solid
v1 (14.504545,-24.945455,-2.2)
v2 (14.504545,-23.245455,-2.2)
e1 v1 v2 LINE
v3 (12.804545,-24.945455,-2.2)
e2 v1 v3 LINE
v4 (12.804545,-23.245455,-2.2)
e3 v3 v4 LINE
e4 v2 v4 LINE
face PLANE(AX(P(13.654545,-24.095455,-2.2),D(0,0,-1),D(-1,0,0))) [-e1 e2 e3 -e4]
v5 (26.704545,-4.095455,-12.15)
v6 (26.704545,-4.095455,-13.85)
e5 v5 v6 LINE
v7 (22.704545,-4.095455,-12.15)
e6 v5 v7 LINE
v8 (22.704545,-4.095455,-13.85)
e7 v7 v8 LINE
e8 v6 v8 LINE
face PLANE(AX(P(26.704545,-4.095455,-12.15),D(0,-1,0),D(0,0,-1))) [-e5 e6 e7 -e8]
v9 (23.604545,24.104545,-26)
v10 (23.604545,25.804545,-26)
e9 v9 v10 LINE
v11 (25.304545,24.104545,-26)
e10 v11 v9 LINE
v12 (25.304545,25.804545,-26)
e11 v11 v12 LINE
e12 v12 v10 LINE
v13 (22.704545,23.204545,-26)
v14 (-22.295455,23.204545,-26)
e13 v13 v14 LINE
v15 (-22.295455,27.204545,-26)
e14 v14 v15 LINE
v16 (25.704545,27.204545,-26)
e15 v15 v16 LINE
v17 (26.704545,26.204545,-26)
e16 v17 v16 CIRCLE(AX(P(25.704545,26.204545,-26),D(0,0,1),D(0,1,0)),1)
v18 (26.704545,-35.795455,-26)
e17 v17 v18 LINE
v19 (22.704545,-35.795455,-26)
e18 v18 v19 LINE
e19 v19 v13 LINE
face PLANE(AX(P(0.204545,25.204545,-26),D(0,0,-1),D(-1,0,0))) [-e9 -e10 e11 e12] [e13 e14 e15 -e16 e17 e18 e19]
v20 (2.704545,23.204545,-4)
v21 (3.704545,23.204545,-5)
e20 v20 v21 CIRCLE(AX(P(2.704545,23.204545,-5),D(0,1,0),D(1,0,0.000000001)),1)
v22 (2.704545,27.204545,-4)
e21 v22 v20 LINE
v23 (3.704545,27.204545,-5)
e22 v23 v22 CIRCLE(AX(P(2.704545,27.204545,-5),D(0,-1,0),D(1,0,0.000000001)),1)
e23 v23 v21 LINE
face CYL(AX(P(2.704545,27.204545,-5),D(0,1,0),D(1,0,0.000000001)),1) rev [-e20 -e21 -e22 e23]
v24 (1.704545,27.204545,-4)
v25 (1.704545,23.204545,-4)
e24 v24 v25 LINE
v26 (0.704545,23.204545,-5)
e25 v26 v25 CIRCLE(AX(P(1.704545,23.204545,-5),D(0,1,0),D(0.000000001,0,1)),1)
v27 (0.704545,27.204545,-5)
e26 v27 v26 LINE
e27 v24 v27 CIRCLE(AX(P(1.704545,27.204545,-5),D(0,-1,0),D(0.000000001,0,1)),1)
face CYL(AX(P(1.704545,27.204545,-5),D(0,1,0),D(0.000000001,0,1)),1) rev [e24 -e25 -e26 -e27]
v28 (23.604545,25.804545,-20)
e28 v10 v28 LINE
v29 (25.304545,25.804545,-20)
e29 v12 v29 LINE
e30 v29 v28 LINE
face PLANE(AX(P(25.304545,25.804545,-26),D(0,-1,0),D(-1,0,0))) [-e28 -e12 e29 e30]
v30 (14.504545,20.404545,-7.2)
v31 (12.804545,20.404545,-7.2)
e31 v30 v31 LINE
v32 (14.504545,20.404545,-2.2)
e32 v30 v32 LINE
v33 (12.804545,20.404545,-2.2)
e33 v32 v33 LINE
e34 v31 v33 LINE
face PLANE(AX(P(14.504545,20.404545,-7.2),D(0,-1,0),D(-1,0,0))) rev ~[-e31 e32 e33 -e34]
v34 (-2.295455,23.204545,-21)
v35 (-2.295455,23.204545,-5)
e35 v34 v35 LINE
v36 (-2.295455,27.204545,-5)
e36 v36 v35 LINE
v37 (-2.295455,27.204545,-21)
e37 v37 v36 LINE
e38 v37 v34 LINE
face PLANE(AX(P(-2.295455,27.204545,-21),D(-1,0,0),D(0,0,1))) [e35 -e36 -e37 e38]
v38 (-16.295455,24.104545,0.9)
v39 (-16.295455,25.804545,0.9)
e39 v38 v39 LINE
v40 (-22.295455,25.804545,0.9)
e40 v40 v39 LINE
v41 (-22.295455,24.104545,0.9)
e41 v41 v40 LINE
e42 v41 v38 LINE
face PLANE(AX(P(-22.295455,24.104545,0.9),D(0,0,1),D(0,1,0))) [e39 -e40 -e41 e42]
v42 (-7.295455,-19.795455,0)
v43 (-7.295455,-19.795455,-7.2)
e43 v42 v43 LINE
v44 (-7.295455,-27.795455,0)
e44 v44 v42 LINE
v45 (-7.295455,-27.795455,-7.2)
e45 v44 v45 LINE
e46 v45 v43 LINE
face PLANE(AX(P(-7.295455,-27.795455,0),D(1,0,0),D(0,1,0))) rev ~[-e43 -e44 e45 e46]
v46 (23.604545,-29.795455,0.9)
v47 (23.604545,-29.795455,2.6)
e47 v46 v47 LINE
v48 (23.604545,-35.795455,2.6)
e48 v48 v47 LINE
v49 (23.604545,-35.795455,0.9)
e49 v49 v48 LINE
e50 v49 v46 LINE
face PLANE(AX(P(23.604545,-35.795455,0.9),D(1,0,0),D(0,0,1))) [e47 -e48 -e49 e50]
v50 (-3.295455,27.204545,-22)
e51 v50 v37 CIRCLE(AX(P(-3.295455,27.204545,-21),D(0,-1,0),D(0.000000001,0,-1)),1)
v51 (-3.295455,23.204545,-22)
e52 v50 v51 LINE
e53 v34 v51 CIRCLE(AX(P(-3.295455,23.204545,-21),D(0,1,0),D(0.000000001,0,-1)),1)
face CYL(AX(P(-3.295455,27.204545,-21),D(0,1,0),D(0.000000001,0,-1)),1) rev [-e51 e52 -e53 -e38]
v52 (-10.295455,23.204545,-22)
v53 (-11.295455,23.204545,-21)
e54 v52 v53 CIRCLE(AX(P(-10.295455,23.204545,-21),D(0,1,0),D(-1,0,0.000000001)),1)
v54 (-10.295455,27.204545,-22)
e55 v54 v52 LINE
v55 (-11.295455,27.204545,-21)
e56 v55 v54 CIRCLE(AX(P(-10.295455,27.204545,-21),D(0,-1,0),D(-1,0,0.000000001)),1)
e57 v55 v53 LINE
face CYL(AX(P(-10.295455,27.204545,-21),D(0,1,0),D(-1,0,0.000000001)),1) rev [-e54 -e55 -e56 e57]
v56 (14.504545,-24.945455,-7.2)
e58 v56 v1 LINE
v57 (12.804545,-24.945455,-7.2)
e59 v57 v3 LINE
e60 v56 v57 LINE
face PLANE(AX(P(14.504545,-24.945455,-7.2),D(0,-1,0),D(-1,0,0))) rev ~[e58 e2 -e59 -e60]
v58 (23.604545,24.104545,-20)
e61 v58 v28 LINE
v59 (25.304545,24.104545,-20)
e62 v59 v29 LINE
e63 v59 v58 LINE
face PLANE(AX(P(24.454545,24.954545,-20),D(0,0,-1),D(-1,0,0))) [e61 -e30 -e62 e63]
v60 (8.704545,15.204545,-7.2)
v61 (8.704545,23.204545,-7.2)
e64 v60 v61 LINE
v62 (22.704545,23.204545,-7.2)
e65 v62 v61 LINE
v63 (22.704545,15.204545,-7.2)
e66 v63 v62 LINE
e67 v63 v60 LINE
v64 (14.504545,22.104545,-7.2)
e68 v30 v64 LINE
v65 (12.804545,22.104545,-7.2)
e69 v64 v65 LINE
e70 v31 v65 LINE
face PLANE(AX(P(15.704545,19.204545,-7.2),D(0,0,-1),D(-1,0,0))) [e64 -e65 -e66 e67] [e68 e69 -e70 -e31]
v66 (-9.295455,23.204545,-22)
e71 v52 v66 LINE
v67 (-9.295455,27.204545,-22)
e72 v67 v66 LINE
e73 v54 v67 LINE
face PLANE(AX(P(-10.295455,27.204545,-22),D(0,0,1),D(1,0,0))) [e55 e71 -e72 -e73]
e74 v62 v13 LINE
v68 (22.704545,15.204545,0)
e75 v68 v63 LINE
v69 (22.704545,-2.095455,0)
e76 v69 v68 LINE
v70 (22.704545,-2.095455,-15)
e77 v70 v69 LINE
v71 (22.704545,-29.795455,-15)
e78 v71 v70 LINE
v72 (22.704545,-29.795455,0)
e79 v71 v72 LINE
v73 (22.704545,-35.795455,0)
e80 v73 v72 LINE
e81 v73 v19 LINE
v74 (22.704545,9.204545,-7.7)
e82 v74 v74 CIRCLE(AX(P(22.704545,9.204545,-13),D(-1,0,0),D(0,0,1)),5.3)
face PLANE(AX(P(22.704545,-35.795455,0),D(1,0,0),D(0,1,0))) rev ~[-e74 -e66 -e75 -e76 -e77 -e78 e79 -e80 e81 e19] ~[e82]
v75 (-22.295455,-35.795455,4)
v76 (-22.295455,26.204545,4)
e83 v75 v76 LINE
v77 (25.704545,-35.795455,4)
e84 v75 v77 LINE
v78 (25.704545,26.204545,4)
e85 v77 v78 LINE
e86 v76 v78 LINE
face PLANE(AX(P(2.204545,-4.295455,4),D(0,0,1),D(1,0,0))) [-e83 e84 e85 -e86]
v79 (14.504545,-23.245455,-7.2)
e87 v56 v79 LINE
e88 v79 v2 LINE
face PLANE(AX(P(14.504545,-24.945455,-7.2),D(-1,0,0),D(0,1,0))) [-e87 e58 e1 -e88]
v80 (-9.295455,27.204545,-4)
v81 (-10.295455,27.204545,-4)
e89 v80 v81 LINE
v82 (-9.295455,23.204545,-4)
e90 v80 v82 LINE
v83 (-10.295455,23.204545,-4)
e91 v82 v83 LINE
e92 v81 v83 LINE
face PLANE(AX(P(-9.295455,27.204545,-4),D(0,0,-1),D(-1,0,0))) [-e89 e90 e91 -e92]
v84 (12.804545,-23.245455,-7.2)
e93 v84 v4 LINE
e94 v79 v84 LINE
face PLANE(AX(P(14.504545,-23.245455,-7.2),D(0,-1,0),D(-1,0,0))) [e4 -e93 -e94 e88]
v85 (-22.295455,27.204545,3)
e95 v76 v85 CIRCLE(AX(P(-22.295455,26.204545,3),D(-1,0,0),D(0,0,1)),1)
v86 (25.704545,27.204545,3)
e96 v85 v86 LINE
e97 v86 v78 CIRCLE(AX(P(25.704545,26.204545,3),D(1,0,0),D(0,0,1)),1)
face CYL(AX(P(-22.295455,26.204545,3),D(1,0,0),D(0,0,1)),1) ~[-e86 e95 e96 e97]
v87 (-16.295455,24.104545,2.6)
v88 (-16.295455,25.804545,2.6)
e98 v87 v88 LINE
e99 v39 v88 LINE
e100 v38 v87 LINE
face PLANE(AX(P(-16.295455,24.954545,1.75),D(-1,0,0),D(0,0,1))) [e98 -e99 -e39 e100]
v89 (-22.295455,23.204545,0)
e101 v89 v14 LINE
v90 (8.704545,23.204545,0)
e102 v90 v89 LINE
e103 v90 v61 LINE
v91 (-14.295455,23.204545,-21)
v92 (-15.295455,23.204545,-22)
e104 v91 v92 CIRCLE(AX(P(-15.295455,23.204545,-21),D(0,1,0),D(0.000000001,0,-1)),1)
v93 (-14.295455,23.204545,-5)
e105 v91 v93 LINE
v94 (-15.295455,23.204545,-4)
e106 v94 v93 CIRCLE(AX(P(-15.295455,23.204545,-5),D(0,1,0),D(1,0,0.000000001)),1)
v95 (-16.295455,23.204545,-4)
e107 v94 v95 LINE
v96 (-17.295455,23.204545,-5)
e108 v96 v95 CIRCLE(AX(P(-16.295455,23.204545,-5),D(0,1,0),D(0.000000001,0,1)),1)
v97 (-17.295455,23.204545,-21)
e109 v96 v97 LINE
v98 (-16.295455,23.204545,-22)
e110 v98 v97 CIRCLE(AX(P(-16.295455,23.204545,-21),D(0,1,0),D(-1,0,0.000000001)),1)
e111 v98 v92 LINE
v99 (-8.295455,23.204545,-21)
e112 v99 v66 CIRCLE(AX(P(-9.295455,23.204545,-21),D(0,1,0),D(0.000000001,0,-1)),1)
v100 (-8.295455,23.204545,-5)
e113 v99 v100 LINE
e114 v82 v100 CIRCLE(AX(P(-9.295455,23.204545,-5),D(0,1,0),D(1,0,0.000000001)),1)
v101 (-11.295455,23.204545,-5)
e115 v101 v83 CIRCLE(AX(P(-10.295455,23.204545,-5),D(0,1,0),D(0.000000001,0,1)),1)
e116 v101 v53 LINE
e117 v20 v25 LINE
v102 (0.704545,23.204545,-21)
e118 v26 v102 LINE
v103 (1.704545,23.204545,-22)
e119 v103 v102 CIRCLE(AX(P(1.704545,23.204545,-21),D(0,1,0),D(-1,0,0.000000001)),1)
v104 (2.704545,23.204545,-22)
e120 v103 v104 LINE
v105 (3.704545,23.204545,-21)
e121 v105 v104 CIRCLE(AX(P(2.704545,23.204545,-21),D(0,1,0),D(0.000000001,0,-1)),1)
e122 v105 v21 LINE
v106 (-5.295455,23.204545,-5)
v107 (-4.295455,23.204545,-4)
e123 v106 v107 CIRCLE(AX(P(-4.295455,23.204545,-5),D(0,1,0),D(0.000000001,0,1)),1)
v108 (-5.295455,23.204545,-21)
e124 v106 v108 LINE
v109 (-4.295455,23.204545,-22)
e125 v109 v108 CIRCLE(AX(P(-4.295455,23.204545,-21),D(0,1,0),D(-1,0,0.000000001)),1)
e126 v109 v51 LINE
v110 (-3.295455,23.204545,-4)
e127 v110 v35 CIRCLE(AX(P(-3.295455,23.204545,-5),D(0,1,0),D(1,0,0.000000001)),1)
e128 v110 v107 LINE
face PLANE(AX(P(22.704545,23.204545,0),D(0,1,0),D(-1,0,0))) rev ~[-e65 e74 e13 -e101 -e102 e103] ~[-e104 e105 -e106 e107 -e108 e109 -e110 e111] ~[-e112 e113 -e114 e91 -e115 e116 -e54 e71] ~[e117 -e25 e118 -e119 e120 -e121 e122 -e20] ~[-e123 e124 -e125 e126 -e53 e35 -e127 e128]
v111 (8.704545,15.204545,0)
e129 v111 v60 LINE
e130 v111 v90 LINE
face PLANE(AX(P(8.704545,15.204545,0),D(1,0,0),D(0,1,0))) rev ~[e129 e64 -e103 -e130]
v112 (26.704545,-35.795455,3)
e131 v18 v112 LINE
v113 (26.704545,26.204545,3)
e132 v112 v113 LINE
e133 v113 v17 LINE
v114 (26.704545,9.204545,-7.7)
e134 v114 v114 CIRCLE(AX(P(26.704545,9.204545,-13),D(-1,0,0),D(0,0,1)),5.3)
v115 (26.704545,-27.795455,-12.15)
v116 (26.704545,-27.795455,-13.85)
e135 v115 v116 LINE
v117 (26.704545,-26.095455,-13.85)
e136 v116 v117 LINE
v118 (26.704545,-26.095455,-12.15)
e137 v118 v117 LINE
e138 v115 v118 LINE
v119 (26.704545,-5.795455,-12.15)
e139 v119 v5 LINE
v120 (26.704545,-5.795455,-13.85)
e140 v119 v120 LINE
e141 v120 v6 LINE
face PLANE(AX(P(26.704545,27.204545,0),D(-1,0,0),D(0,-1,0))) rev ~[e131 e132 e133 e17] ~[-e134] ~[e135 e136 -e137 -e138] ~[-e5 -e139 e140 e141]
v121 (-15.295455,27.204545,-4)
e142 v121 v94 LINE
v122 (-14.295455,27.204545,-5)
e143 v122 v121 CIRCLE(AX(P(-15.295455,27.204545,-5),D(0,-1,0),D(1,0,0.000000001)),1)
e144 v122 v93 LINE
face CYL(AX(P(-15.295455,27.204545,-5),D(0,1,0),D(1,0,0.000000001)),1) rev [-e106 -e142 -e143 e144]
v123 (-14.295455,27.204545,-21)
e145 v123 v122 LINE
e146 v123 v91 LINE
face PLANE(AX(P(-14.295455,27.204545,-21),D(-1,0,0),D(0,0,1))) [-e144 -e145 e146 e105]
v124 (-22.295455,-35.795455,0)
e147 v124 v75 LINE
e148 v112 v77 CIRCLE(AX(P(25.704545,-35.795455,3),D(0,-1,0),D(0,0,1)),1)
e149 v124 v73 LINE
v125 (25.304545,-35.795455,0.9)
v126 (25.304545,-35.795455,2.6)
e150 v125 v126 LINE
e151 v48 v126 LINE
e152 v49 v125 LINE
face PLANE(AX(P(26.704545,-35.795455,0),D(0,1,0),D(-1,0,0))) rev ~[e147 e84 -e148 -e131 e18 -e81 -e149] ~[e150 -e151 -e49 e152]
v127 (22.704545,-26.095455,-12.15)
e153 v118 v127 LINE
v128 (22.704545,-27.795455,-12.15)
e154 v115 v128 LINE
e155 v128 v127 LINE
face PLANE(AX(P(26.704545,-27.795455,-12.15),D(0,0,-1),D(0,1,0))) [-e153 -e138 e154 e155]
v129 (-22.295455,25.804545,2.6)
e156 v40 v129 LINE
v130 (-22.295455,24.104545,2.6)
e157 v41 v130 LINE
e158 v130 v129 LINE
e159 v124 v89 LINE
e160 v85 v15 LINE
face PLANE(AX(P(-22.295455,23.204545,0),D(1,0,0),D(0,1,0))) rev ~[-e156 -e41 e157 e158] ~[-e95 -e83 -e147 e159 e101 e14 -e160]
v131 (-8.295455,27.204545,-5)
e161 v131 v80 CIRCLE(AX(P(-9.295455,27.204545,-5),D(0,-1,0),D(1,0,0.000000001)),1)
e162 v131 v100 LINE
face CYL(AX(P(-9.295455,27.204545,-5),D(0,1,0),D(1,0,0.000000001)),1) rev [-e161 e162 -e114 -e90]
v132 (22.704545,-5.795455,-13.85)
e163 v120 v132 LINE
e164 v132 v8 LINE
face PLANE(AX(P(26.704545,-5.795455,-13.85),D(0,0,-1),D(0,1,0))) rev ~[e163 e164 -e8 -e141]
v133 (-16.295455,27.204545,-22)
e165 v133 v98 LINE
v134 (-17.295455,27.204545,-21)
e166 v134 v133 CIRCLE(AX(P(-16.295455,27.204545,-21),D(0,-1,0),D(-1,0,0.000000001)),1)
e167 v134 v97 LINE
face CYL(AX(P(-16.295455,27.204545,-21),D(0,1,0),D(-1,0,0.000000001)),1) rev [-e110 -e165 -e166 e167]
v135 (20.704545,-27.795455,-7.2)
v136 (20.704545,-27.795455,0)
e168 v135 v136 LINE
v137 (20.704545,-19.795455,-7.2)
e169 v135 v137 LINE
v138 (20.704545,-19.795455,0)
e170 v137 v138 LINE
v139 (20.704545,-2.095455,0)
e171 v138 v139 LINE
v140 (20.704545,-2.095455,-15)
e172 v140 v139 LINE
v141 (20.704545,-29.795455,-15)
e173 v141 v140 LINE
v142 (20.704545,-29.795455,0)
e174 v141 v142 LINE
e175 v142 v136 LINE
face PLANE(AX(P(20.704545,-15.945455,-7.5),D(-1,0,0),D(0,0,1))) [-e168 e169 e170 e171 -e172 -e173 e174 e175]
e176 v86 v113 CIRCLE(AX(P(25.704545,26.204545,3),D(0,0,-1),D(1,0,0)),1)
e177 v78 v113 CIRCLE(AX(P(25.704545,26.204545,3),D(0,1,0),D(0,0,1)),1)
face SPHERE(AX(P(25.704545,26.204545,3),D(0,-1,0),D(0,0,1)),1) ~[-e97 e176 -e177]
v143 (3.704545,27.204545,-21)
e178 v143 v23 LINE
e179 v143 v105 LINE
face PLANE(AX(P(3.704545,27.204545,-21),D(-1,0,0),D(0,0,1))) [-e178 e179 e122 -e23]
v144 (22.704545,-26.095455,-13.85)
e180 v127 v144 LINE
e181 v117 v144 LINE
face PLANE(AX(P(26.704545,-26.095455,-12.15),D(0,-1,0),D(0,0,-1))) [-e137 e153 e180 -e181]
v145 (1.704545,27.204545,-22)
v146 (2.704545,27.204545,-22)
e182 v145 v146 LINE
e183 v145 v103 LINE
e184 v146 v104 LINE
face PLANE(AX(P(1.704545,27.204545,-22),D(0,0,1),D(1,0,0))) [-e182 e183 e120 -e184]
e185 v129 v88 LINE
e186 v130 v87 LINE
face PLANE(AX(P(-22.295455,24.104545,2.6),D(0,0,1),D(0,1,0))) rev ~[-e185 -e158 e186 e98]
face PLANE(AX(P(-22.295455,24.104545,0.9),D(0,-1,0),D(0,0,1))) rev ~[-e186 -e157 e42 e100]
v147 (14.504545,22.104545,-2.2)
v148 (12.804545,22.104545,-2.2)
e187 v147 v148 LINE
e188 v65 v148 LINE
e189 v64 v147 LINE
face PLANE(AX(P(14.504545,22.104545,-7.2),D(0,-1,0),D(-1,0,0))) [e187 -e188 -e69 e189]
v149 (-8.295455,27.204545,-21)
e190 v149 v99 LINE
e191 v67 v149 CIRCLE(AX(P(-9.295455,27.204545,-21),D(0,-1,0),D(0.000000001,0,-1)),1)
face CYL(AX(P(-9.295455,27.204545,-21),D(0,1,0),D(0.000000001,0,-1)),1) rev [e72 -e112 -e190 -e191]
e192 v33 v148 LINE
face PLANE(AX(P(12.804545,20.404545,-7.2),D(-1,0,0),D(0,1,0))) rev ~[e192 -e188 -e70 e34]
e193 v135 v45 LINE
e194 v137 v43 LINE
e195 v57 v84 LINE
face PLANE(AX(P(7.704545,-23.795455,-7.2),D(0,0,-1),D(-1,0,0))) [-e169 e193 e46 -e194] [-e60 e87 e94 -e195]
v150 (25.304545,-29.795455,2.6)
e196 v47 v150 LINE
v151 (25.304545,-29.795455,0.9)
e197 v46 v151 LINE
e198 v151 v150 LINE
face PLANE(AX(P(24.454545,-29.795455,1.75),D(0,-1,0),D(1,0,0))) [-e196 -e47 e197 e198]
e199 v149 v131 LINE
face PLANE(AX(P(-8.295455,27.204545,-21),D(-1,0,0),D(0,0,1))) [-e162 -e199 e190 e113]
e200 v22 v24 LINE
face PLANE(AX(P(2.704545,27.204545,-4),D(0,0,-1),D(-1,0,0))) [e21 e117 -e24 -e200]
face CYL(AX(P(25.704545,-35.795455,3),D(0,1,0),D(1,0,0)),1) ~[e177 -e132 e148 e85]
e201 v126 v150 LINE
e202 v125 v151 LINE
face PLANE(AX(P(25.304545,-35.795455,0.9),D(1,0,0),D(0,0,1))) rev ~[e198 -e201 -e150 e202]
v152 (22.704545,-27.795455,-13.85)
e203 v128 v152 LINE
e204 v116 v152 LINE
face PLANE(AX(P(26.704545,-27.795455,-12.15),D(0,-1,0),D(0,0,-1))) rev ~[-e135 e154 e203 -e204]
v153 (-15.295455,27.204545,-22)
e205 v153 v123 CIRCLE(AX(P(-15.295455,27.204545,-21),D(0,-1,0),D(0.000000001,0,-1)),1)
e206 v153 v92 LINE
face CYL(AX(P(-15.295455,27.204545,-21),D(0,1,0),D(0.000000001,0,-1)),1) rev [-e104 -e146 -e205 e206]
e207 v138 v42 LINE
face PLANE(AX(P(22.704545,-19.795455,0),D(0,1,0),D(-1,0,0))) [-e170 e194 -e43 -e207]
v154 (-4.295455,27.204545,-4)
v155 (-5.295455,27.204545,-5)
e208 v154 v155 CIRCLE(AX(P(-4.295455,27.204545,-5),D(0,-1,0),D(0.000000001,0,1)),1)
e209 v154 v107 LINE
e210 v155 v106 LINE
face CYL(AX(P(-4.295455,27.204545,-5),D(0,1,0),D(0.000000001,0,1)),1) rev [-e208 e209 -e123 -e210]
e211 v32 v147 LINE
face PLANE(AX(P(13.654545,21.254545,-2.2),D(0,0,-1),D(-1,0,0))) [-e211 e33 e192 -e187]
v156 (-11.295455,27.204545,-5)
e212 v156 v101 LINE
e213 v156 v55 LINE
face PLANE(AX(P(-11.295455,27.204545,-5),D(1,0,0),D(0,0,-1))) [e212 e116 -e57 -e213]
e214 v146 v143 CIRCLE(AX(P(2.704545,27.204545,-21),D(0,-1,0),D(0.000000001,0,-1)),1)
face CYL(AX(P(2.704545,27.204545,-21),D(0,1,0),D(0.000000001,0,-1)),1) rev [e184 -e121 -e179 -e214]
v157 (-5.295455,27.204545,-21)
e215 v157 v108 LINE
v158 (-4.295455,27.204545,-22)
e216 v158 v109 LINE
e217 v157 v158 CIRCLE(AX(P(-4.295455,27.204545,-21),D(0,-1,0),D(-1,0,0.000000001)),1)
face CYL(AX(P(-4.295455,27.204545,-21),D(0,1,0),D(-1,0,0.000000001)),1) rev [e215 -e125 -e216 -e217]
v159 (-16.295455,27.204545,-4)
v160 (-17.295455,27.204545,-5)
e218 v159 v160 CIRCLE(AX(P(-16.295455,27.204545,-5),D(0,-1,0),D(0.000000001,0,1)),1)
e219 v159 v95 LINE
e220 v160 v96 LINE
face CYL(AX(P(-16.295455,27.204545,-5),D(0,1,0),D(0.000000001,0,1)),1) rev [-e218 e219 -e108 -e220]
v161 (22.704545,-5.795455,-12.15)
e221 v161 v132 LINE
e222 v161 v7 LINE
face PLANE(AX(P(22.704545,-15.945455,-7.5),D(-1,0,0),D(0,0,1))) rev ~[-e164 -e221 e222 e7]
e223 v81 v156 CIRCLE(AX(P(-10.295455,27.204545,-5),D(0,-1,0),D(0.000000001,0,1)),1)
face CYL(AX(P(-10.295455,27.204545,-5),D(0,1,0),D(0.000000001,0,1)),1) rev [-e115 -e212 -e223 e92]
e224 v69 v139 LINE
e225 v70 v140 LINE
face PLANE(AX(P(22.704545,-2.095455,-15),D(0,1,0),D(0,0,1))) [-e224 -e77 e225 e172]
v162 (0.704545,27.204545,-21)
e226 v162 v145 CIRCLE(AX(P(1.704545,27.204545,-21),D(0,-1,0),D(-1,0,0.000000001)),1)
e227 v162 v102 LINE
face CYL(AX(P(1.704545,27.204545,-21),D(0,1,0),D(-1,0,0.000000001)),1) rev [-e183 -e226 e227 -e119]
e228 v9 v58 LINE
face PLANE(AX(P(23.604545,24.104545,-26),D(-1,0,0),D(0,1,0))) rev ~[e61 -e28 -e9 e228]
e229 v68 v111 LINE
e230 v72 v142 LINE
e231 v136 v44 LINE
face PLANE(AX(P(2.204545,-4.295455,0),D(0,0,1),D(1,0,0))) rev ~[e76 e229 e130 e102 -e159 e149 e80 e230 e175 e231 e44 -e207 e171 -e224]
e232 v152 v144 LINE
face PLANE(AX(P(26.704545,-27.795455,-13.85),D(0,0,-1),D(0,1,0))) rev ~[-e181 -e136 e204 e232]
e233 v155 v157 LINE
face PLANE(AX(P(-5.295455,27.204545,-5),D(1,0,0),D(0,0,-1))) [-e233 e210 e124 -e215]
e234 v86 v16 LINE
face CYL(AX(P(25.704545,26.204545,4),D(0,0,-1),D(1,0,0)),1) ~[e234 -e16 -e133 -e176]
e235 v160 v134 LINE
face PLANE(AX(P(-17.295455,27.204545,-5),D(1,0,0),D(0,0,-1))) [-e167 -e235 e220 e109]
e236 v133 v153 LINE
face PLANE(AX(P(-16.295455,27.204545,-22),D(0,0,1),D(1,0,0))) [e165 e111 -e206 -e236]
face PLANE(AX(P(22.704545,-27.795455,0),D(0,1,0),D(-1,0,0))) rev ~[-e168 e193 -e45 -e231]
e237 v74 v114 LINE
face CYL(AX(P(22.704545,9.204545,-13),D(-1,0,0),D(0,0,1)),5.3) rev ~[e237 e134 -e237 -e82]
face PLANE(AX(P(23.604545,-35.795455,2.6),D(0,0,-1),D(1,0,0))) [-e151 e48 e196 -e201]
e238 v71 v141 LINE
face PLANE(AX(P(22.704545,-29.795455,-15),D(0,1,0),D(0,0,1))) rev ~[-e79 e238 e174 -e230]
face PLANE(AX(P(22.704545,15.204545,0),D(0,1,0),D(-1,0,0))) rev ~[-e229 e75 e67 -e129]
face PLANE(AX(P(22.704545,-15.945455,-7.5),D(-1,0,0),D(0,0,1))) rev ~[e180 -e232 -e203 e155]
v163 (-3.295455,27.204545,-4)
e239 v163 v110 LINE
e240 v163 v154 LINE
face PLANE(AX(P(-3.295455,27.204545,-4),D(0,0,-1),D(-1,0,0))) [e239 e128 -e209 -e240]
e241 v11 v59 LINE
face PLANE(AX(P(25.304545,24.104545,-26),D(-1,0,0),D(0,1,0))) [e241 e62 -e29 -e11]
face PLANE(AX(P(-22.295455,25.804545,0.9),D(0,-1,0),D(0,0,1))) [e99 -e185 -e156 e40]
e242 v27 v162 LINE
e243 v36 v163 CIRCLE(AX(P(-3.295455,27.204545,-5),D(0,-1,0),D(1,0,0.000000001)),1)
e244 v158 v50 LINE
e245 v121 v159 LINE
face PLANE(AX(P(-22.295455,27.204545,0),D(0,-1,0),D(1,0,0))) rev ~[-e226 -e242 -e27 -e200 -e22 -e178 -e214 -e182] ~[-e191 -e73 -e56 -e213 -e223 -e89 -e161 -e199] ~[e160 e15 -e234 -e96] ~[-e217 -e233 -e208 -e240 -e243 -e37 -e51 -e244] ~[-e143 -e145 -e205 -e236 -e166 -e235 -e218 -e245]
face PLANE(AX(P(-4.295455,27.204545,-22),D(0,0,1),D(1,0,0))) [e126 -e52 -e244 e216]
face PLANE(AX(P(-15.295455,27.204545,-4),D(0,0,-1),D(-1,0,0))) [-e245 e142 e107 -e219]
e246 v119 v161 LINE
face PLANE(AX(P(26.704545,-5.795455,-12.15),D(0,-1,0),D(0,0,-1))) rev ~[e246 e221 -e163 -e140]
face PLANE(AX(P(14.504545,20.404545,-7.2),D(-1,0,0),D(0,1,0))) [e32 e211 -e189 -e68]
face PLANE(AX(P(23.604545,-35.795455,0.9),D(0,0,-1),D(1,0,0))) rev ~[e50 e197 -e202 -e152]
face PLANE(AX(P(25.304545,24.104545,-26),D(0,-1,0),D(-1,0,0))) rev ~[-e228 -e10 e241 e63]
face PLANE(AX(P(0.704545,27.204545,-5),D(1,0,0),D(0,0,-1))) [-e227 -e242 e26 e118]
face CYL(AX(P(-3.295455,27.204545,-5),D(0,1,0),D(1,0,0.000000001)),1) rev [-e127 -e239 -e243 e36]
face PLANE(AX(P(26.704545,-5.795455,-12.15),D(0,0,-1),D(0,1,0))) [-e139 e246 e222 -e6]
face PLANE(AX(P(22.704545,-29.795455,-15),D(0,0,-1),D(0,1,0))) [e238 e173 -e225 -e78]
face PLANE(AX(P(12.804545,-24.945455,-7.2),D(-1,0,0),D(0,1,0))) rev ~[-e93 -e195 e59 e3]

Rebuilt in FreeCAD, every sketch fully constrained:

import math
import FreeCAD as App
import Part
import Sketcher
from FreeCAD import Vector
Q = App.Units.Quantity


def edges_at(feature, points):
    """Names of the edges that pass closest to the given points."""
    edges = feature.Shape.Edges
    near = lambda p: min(range(len(edges)), key=lambda i: edges[i].distToShape(Part.Vertex(*p))[0])
    return sorted({f"Edge{near(p) + 1}" for p in points})


def add_polygon(sketch, points):
    """Adds a closed chain of lines whose ends are joined by coincident constraints."""
    first, n = sketch.GeometryCount, len(points)
    for a, b in zip(points, points[1:] + points[:1]):
        sketch.addGeometry(Part.LineSegment(App.Vector(*a, 0), App.Vector(*b, 0)), False)
    for i in range(n):
        sketch.addConstraint(Sketcher.Constraint("Coincident", first + i, 2, first + (i + 1) % n, 1))

doc = App.newDocument("Part")
body = doc.addObject("PartDesign::Body", "Body")

# Sketch on XY plane
sketch1 = body.newObject("Sketcher::SketchObject", "Sketch")
sketch1.AttachmentSupport = (doc.getObject("XY_Plane"), [""])
sketch1.MapMode = "FlatFace"
add_polygon(sketch1, [(-22.295455, 27.204545), (-22.295455, -35.795455), (26.704545, -35.795455), (26.704545, 27.204545)])  # lines 0-3
sketch1.addConstraint(Sketcher.Constraint("Vertical", 0))
sketch1.addConstraint(Sketcher.Constraint("Horizontal", 1))
sketch1.addConstraint(Sketcher.Constraint("Vertical", 2))
sketch1.addConstraint(Sketcher.Constraint("Horizontal", 3))
sketch1.addConstraint(Sketcher.Constraint("DistanceX", 1, 1, 1, 2, Q("49 mm")))
sketch1.addConstraint(Sketcher.Constraint("DistanceY", 0, 2, 0, 1, Q("63 mm")))
sketch1.addConstraint(Sketcher.Constraint("DistanceX", 0, 2, -1, 1, Q("22.295455 mm")))
sketch1.addConstraint(Sketcher.Constraint("DistanceY", 0, 2, -1, 1, Q("35.795455 mm")))
pad1 = body.newObject("PartDesign::Pad", "Pad")
pad1.Profile = sketch1
pad1.Length = 4

# Sketch on XY plane
sketch2 = body.newObject("Sketcher::SketchObject", "Sketch001")
sketch2.AttachmentSupport = (doc.getObject("XY_Plane"), [""])
sketch2.MapMode = "FlatFace"
add_polygon(sketch2, [(22.704545, 23.204545), (-22.295455, 23.204545), (-22.295455, 27.204545), (26.704545, 27.204545), (26.704545, -35.795455), (22.704545, -35.795455)])  # lines 0-5
sketch2.addConstraint(Sketcher.Constraint("Horizontal", 0))
sketch2.addConstraint(Sketcher.Constraint("Vertical", 1))
sketch2.addConstraint(Sketcher.Constraint("Horizontal", 2))
sketch2.addConstraint(Sketcher.Constraint("Vertical", 3))
sketch2.addConstraint(Sketcher.Constraint("Horizontal", 4))
sketch2.addConstraint(Sketcher.Constraint("Vertical", 5))
sketch2.addConstraint(Sketcher.Constraint("Equal", 4, 1))
sketch2.addConstraint(Sketcher.Constraint("DistanceX", 0, 2, 0, 1, Q("45 mm")))
sketch2.addConstraint(Sketcher.Constraint("DistanceX", 2, 1, 2, 2, Q("49 mm")))
sketch2.addConstraint(Sketcher.Constraint("DistanceY", 3, 2, 3, 1, Q("63 mm")))
sketch2.addConstraint(Sketcher.Constraint("DistanceX", 0, 2, -1, 1, Q("22.295455 mm")))
sketch2.addConstraint(Sketcher.Constraint("DistanceY", -1, 1, 0, 2, Q("23.204545 mm")))
pad2 = body.newObject("PartDesign::Pad", "Pad001")
pad2.Profile = sketch2
pad2.Length = 26
pad2.Reversed = True

# Sketch on XY plane
sketch3 = body.newObject("Sketcher::SketchObject", "Sketch002")
sketch3.AttachmentSupport = (doc.getObject("XY_Plane"), [""])
sketch3.MapMode = "FlatFace"
add_polygon(sketch3, [(22.704545, 23.204545), (22.704545, 15.204545), (8.704545, 15.204545), (8.704545, 23.204545)])  # lines 0-3
add_polygon(sketch3, [(22.704545, -19.795455), (22.704545, -27.795455), (-7.295455, -27.795455), (-7.295455, -19.795455)])  # lines 4-7
sketch3.addConstraint(Sketcher.Constraint("Vertical", 0))
sketch3.addConstraint(Sketcher.Constraint("Horizontal", 1))
sketch3.addConstraint(Sketcher.Constraint("Vertical", 2))
sketch3.addConstraint(Sketcher.Constraint("Horizontal", 3))
sketch3.addConstraint(Sketcher.Constraint("Vertical", 4))
sketch3.addConstraint(Sketcher.Constraint("Horizontal", 5))
sketch3.addConstraint(Sketcher.Constraint("Vertical", 6))
sketch3.addConstraint(Sketcher.Constraint("Horizontal", 7))
sketch3.addConstraint(Sketcher.Constraint("Vertical", 3, 2, 4, 2))
sketch3.addConstraint(Sketcher.Constraint("Equal", 2, 4))
sketch3.addConstraint(Sketcher.Constraint("DistanceX", 1, 2, 1, 1, Q("14 mm")))
sketch3.addConstraint(Sketcher.Constraint("DistanceX", 5, 2, 5, 1, Q("30 mm")))
sketch3.addConstraint(Sketcher.Constraint("DistanceY", 0, 2, 0, 1, Q("8 mm")))
sketch3.addConstraint(Sketcher.Constraint("DistanceY", 4, 2, 0, 2, Q("43 mm")))
sketch3.addConstraint(Sketcher.Constraint("DistanceX", -1, 1, 0, 2, Q("22.704545 mm")))
sketch3.addConstraint(Sketcher.Constraint("DistanceY", -1, 1, 0, 2, Q("15.204545 mm")))
pad3 = body.newObject("PartDesign::Pad", "Pad002")
pad3.Profile = sketch3
pad3.Length = 7.2
pad3.Reversed = True

# Sketch on YZ plane
sketch4 = body.newObject("Sketcher::SketchObject", "Sketch003")
sketch4.AttachmentSupport = (doc.getObject("YZ_Plane"), [""])
sketch4.MapMode = "FlatFace"
sketch4.AttachmentOffset = App.Placement(Vector(0, 0, 22.704545), App.Rotation())
sketch4.addGeometry(Part.Circle(Vector(9.204545, -13, 0), Vector(0, 0, 1), 5.3), False)
sketch4.addConstraint(Sketcher.Constraint("Diameter", 0, Q("10.6 mm")))
sketch4.addConstraint(Sketcher.Constraint("DistanceY", 0, 3, -1, 1, Q("13 mm")))
sketch4.addConstraint(Sketcher.Constraint("DistanceX", -1, 1, 0, 3, Q("9.204545 mm")))
pocket1 = body.newObject("PartDesign::Pocket", "Pocket")
pocket1.Profile = sketch4
pocket1.Length = 4
pocket1.Reversed = True

# Sketch on YZ plane
sketch5 = body.newObject("Sketcher::SketchObject", "Sketch004")
sketch5.AttachmentSupport = (doc.getObject("YZ_Plane"), [""])
sketch5.MapMode = "FlatFace"
sketch5.AttachmentOffset = App.Placement(Vector(0, 0, -22.295455), App.Rotation())
add_polygon(sketch5, [(25.804545, 0.9), (24.104545, 0.9), (24.104545, 2.6), (25.804545, 2.6)])  # lines 0-3
sketch5.addConstraint(Sketcher.Constraint("Horizontal", 0))
sketch5.addConstraint(Sketcher.Constraint("Vertical", 1))
sketch5.addConstraint(Sketcher.Constraint("Horizontal", 2))
sketch5.addConstraint(Sketcher.Constraint("Vertical", 3))
sketch5.addConstraint(Sketcher.Constraint("Equal", 2, 1))
sketch5.addConstraint(Sketcher.Constraint("DistanceX", 0, 2, 0, 1, Q("1.7 mm")))
sketch5.addConstraint(Sketcher.Constraint("DistanceY", -1, 1, 0, 2, Q("0.9 mm")))
sketch5.addConstraint(Sketcher.Constraint("DistanceX", -1, 1, 0, 2, Q("24.104545 mm")))
pocket2 = body.newObject("PartDesign::Pocket", "Pocket001")
pocket2.Profile = sketch5
pocket2.Length = 6
pocket2.Reversed = True

# Sketch on XZ plane
sketch6 = body.newObject("Sketcher::SketchObject", "Sketch005")
sketch6.AttachmentSupport = (doc.getObject("XZ_Plane"), [""])
sketch6.MapMode = "FlatFace"
sketch6.AttachmentOffset = App.Placement(Vector(0, 0, 35.795455), App.Rotation())
add_polygon(sketch6, [(23.604545, 2.6), (23.604545, 0.9), (25.304545, 0.9), (25.304545, 2.6)])  # lines 0-3
sketch6.addConstraint(Sketcher.Constraint("Vertical", 0))
sketch6.addConstraint(Sketcher.Constraint("Horizontal", 1))
sketch6.addConstraint(Sketcher.Constraint("Vertical", 2))
sketch6.addConstraint(Sketcher.Constraint("Horizontal", 3))
sketch6.addConstraint(Sketcher.Constraint("Equal", 3, 0))
sketch6.addConstraint(Sketcher.Constraint("DistanceX", 1, 1, 1, 2, Q("1.7 mm")))
sketch6.addConstraint(Sketcher.Constraint("DistanceY", -1, 1, 0, 2, Q("0.9 mm")))
sketch6.addConstraint(Sketcher.Constraint("DistanceX", -1, 1, 0, 2, Q("23.604545 mm")))
pocket3 = body.newObject("PartDesign::Pocket", "Pocket002")
pocket3.Profile = sketch6
pocket3.Length = 6

# Sketch on XY plane
sketch7 = body.newObject("Sketcher::SketchObject", "Sketch006")
sketch7.AttachmentSupport = (doc.getObject("XY_Plane"), [""])
sketch7.MapMode = "FlatFace"
sketch7.AttachmentOffset = App.Placement(Vector(0, 0, -26), App.Rotation())
add_polygon(sketch7, [(25.304545, 25.804545), (25.304545, 24.104545), (23.604545, 24.104545), (23.604545, 25.804545)])  # lines 0-3
sketch7.addConstraint(Sketcher.Constraint("Vertical", 0))
sketch7.addConstraint(Sketcher.Constraint("Horizontal", 1))
sketch7.addConstraint(Sketcher.Constraint("Vertical", 2))
sketch7.addConstraint(Sketcher.Constraint("Horizontal", 3))
sketch7.addConstraint(Sketcher.Constraint("Equal", 3, 0))
sketch7.addConstraint(Sketcher.Constraint("DistanceX", 1, 2, 1, 1, Q("1.7 mm")))
sketch7.addConstraint(Sketcher.Constraint("DistanceX", -1, 1, 0, 2, Q("25.304545 mm")))
sketch7.addConstraint(Sketcher.Constraint("DistanceY", -1, 1, 0, 2, Q("24.104545 mm")))
pocket4 = body.newObject("PartDesign::Pocket", "Pocket003")
pocket4.Profile = sketch7
pocket4.Length = 6
pocket4.Reversed = True
doc.recompute()

fillet = body.newObject("PartDesign::Fillet", "Fillet")
fillet.Base = (pocket4, edges_at(pocket4, [(26.705, -4.295, 4), (2.205, 27.205, 4), (26.705, 27.205, -11)]))
fillet.Radius = 1

# Sketch on YZ plane
sketch8 = body.newObject("Sketcher::SketchObject", "Sketch007")
sketch8.AttachmentSupport = (doc.getObject("YZ_Plane"), [""])
sketch8.MapMode = "FlatFace"
sketch8.AttachmentOffset = App.Placement(Vector(0, 0, 26.704545), App.Rotation())
add_polygon(sketch8, [(-4.095455, -12.15), (-5.795455, -12.15), (-5.795455, -13.85), (-4.095455, -13.85)])  # lines 0-3
add_polygon(sketch8, [(-26.095455, -12.15), (-27.795455, -12.15), (-27.795455, -13.85), (-26.095455, -13.85)])  # lines 4-7
sketch8.addConstraint(Sketcher.Constraint("Horizontal", 0))
sketch8.addConstraint(Sketcher.Constraint("Vertical", 1))
sketch8.addConstraint(Sketcher.Constraint("Horizontal", 2))
sketch8.addConstraint(Sketcher.Constraint("Vertical", 3))
sketch8.addConstraint(Sketcher.Constraint("Horizontal", 4))
sketch8.addConstraint(Sketcher.Constraint("Vertical", 5))
sketch8.addConstraint(Sketcher.Constraint("Horizontal", 6))
sketch8.addConstraint(Sketcher.Constraint("Vertical", 7))
sketch8.addConstraint(Sketcher.Constraint("Horizontal", 3, 2, 4, 2))
sketch8.addConstraint(Sketcher.Constraint("Horizontal", 2, 2, 5, 2))
sketch8.addConstraint(Sketcher.Constraint("Equal", 2, 4))
sketch8.addConstraint(Sketcher.Constraint("Equal", 6, 1))
sketch8.addConstraint(Sketcher.Constraint("DistanceX", 0, 2, 0, 1, Q("1.7 mm")))
sketch8.addConstraint(Sketcher.Constraint("DistanceX", 4, 2, 0, 2, Q("22 mm")))
sketch8.addConstraint(Sketcher.Constraint("DistanceY", 0, 2, -1, 1, Q("12.15 mm")))
sketch8.addConstraint(Sketcher.Constraint("DistanceX", 0, 2, -1, 1, Q("5.795455 mm")))
pocket5 = body.newObject("PartDesign::Pocket", "Pocket004")
pocket5.Profile = sketch8
pocket5.Length = 5

# Sketch on YZ plane
sketch9 = body.newObject("Sketcher::SketchObject", "Sketch008")
sketch9.AttachmentSupport = (doc.getObject("YZ_Plane"), [""])
sketch9.MapMode = "FlatFace"
sketch9.AttachmentOffset = App.Placement(Vector(0, 0, 22.704545), App.Rotation())
add_polygon(sketch9, [(-2.095455, -15), (-29.795455, -15), (-29.795455, 0), (-2.095455, 0)])  # lines 0-3
sketch9.addConstraint(Sketcher.Constraint("Horizontal", 0))
sketch9.addConstraint(Sketcher.Constraint("Vertical", 1))
sketch9.addConstraint(Sketcher.Constraint("Horizontal", 2))
sketch9.addConstraint(Sketcher.Constraint("Vertical", 3))
sketch9.addConstraint(Sketcher.Constraint("PointOnObject", 1, 2, -1))
sketch9.addConstraint(Sketcher.Constraint("DistanceY", 1, 1, 1, 2, Q("15 mm")))
sketch9.addConstraint(Sketcher.Constraint("DistanceX", 0, 2, 0, 1, Q("27.7 mm")))
sketch9.addConstraint(Sketcher.Constraint("DistanceX", 0, 2, -1, 1, Q("29.795455 mm")))
pad4 = body.newObject("PartDesign::Pad", "Pad003")
pad4.Profile = sketch9
pad4.Length = 2
pad4.Reversed = True

# Sketch on XZ plane
sketch10 = body.newObject("Sketcher::SketchObject", "Sketch009")
sketch10.AttachmentSupport = (doc.getObject("XZ_Plane"), [""])
sketch10.MapMode = "FlatFace"
sketch10.AttachmentOffset = App.Placement(Vector(0, 0, -27.204545), App.Rotation())
sketch10.addGeometry(Part.LineSegment(Vector(1.704545, -4, 0), Vector(2.704545, -4, 0)), False)
sketch10.addGeometry(Part.ArcOfCircle(Part.Circle(Vector(2.704545, -5, 0), Vector(0, 0, 1), 1), math.radians(0), math.radians(90)), False)
sketch10.addGeometry(Part.LineSegment(Vector(3.704545, -5, 0), Vector(3.704545, -21, 0)), False)
sketch10.addGeometry(Part.ArcOfCircle(Part.Circle(Vector(2.704545, -21, 0), Vector(0, 0, 1), 1), math.radians(-90), math.radians(0)), False)
sketch10.addGeometry(Part.LineSegment(Vector(2.704545, -22, 0), Vector(1.704545, -22, 0)), False)
sketch10.addGeometry(Part.ArcOfCircle(Part.Circle(Vector(1.704545, -21, 0), Vector(0, 0, 1), 1), math.radians(180), math.radians(270)), False)
sketch10.addGeometry(Part.LineSegment(Vector(0.704545, -21, 0), Vector(0.704545, -5, 0)), False)
sketch10.addGeometry(Part.ArcOfCircle(Part.Circle(Vector(1.704545, -5, 0), Vector(0, 0, 1), 1), math.radians(90), math.radians(180)), False)
sketch10.addGeometry(Part.LineSegment(Vector(-4.295455, -4, 0), Vector(-3.295455, -4, 0)), False)
sketch10.addGeometry(Part.ArcOfCircle(Part.Circle(Vector(-3.295455, -5, 0), Vector(0, 0, 1), 1), math.radians(0), math.radians(90)), False)
sketch10.addGeometry(Part.LineSegment(Vector(-2.295455, -5, 0), Vector(-2.295455, -21, 0)), False)
sketch10.addGeometry(Part.ArcOfCircle(Part.Circle(Vector(-3.295455, -21, 0), Vector(0, 0, 1), 1), math.radians(-90), math.radians(0)), False)
sketch10.addGeometry(Part.LineSegment(Vector(-3.295455, -22, 0), Vector(-4.295455, -22, 0)), False)
sketch10.addGeometry(Part.ArcOfCircle(Part.Circle(Vector(-4.295455, -21, 0), Vector(0, 0, 1), 1), math.radians(180), math.radians(270)), False)
sketch10.addGeometry(Part.LineSegment(Vector(-5.295455, -21, 0), Vector(-5.295455, -5, 0)), False)
sketch10.addGeometry(Part.ArcOfCircle(Part.Circle(Vector(-4.295455, -5, 0), Vector(0, 0, 1), 1), math.radians(90), math.radians(180)), False)
sketch10.addGeometry(Part.LineSegment(Vector(-10.295455, -4, 0), Vector(-9.295455, -4, 0)), False)
sketch10.addGeometry(Part.ArcOfCircle(Part.Circle(Vector(-9.295455, -5, 0), Vector(0, 0, 1), 1), math.radians(0), math.radians(90)), False)
sketch10.addGeometry(Part.LineSegment(Vector(-8.295455, -5, 0), Vector(-8.295455, -21, 0)), False)
sketch10.addGeometry(Part.ArcOfCircle(Part.Circle(Vector(-9.295455, -21, 0), Vector(0, 0, 1), 1), math.radians(-90), math.radians(0)), False)
sketch10.addGeometry(Part.LineSegment(Vector(-9.295455, -22, 0), Vector(-10.295455, -22, 0)), False)
sketch10.addGeometry(Part.ArcOfCircle(Part.Circle(Vector(-10.295455, -21, 0), Vector(0, 0, 1), 1), math.radians(180), math.radians(270)), False)
sketch10.addGeometry(Part.LineSegment(Vector(-11.295455, -21, 0), Vector(-11.295455, -5, 0)), False)
sketch10.addGeometry(Part.ArcOfCircle(Part.Circle(Vector(-10.295455, -5, 0), Vector(0, 0, 1), 1), math.radians(90), math.radians(180)), False)
sketch10.addGeometry(Part.LineSegment(Vector(-16.295455, -4, 0), Vector(-15.295455, -4, 0)), False)
sketch10.addGeometry(Part.ArcOfCircle(Part.Circle(Vector(-15.295455, -5, 0), Vector(0, 0, 1), 1), math.radians(0), math.radians(90)), False)
sketch10.addGeometry(Part.LineSegment(Vector(-14.295455, -5, 0), Vector(-14.295455, -21, 0)), False)
sketch10.addGeometry(Part.ArcOfCircle(Part.Circle(Vector(-15.295455, -21, 0), Vector(0, 0, 1), 1), math.radians(-90), math.radians(0)), False)
sketch10.addGeometry(Part.LineSegment(Vector(-15.295455, -22, 0), Vector(-16.295455, -22, 0)), False)
sketch10.addGeometry(Part.ArcOfCircle(Part.Circle(Vector(-16.295455, -21, 0), Vector(0, 0, 1), 1), math.radians(180), math.radians(270)), False)
sketch10.addGeometry(Part.LineSegment(Vector(-17.295455, -21, 0), Vector(-17.295455, -5, 0)), False)
sketch10.addGeometry(Part.ArcOfCircle(Part.Circle(Vector(-16.295455, -5, 0), Vector(0, 0, 1), 1), math.radians(90), math.radians(180)), False)
sketch10.addConstraint(Sketcher.Constraint("Tangent", 0, 2, 1, 2))
sketch10.addConstraint(Sketcher.Constraint("Tangent", 1, 1, 2, 1))
sketch10.addConstraint(Sketcher.Constraint("Tangent", 2, 2, 3, 2))
sketch10.addConstraint(Sketcher.Constraint("Tangent", 3, 1, 4, 1))
sketch10.addConstraint(Sketcher.Constraint("Tangent", 4, 2, 5, 2))
sketch10.addConstraint(Sketcher.Constraint("Tangent", 5, 1, 6, 1))
sketch10.addConstraint(Sketcher.Constraint("Tangent", 6, 2, 7, 2))
sketch10.addConstraint(Sketcher.Constraint("Tangent", 7, 1, 0, 1))
sketch10.addConstraint(Sketcher.Constraint("Tangent", 8, 2, 9, 2))
sketch10.addConstraint(Sketcher.Constraint("Tangent", 9, 1, 10, 1))
sketch10.addConstraint(Sketcher.Constraint("Tangent", 10, 2, 11, 2))
sketch10.addConstraint(Sketcher.Constraint("Tangent", 11, 1, 12, 1))
sketch10.addConstraint(Sketcher.Constraint("Tangent", 12, 2, 13, 2))
sketch10.addConstraint(Sketcher.Constraint("Tangent", 13, 1, 14, 1))
sketch10.addConstraint(Sketcher.Constraint("Tangent", 14, 2, 15, 2))
sketch10.addConstraint(Sketcher.Constraint("Tangent", 15, 1, 8, 1))
sketch10.addConstraint(Sketcher.Constraint("Tangent", 16, 2, 17, 2))
sketch10.addConstraint(Sketcher.Constraint("Tangent", 17, 1, 18, 1))
sketch10.addConstraint(Sketcher.Constraint("Tangent", 18, 2, 19, 2))
sketch10.addConstraint(Sketcher.Constraint("Tangent", 19, 1, 20, 1))
sketch10.addConstraint(Sketcher.Constraint("Tangent", 20, 2, 21, 2))
sketch10.addConstraint(Sketcher.Constraint("Tangent", 21, 1, 22, 1))
sketch10.addConstraint(Sketcher.Constraint("Tangent", 22, 2, 23, 2))
sketch10.addConstraint(Sketcher.Constraint("Tangent", 23, 1, 16, 1))
sketch10.addConstraint(Sketcher.Constraint("Tangent", 24, 2, 25, 2))
sketch10.addConstraint(Sketcher.Constraint("Tangent", 25, 1, 26, 1))
sketch10.addConstraint(Sketcher.Constraint("Tangent", 26, 2, 27, 2))
sketch10.addConstraint(Sketcher.Constraint("Tangent", 27, 1, 28, 1))
sketch10.addConstraint(Sketcher.Constraint("Tangent", 28, 2, 29, 2))
sketch10.addConstraint(Sketcher.Constraint("Tangent", 29, 1, 30, 1))
sketch10.addConstraint(Sketcher.Constraint("Tangent", 30, 2, 31, 2))
sketch10.addConstraint(Sketcher.Constraint("Tangent", 31, 1, 24, 1))
sketch10.addConstraint(Sketcher.Constraint("Horizontal", 0))
sketch10.addConstraint(Sketcher.Constraint("Vertical", 2))
sketch10.addConstraint(Sketcher.Constraint("Horizontal", 4))
sketch10.addConstraint(Sketcher.Constraint("Vertical", 6))
sketch10.addConstraint(Sketcher.Constraint("Horizontal", 8))
sketch10.addConstraint(Sketcher.Constraint("Vertical", 10))
sketch10.addConstraint(Sketcher.Constraint("Horizontal", 12))
sketch10.addConstraint(Sketcher.Constraint("Vertical", 14))
sketch10.addConstraint(Sketcher.Constraint("Horizontal", 16))
sketch10.addConstraint(Sketcher.Constraint("Vertical", 18))
sketch10.addConstraint(Sketcher.Constraint("Horizontal", 20))
sketch10.addConstraint(Sketcher.Constraint("Vertical", 22))
sketch10.addConstraint(Sketcher.Constraint("Horizontal", 24))
sketch10.addConstraint(Sketcher.Constraint("Vertical", 26))
sketch10.addConstraint(Sketcher.Constraint("Horizontal", 28))
sketch10.addConstraint(Sketcher.Constraint("Vertical", 30))
sketch10.addConstraint(Sketcher.Constraint("Equal", 1, 3))
sketch10.addConstraint(Sketcher.Constraint("Equal", 3, 5))
sketch10.addConstraint(Sketcher.Constraint("Equal", 5, 7))
sketch10.addConstraint(Sketcher.Constraint("Equal", 7, 9))
sketch10.addConstraint(Sketcher.Constraint("Equal", 9, 11))
sketch10.addConstraint(Sketcher.Constraint("Equal", 11, 13))
sketch10.addConstraint(Sketcher.Constraint("Equal", 13, 15))
sketch10.addConstraint(Sketcher.Constraint("Equal", 15, 17))
sketch10.addConstraint(Sketcher.Constraint("Equal", 17, 19))
sketch10.addConstraint(Sketcher.Constraint("Equal", 19, 21))
sketch10.addConstraint(Sketcher.Constraint("Equal", 21, 23))
sketch10.addConstraint(Sketcher.Constraint("Equal", 23, 25))
sketch10.addConstraint(Sketcher.Constraint("Equal", 25, 27))
sketch10.addConstraint(Sketcher.Constraint("Equal", 27, 29))
sketch10.addConstraint(Sketcher.Constraint("Equal", 29, 31))
sketch10.addConstraint(Sketcher.Constraint("Horizontal", 7, 3, 9, 3))
sketch10.addConstraint(Sketcher.Constraint("Horizontal", 5, 3, 11, 3))
sketch10.addConstraint(Sketcher.Constraint("Horizontal", 15, 3, 17, 3))
sketch10.addConstraint(Sketcher.Constraint("Horizontal", 13, 3, 19, 3))
sketch10.addConstraint(Sketcher.Constraint("Horizontal", 23, 3, 25, 3))
sketch10.addConstraint(Sketcher.Constraint("Horizontal", 21, 3, 27, 3))
sketch10.addConstraint(Sketcher.Constraint("Equal", 4, 8))
sketch10.addConstraint(Sketcher.Constraint("Equal", 12, 16))
sketch10.addConstraint(Sketcher.Constraint("Equal", 20, 24))
sketch10.addConstraint(Sketcher.Constraint("Radius", 1, Q("1 mm")))
sketch10.addConstraint(Sketcher.Constraint("DistanceX", 0, 1, 0, 2, Q("1 mm")))
sketch10.addConstraint(Sketcher.Constraint("DistanceY", 2, 2, 2, 1, Q("16 mm")))
sketch10.addConstraint(Sketcher.Constraint("DistanceY", 1, 3, -1, 1, Q("5 mm")))
sketch10.addConstraint(Sketcher.Constraint("DistanceX", 9, 3, 7, 3, Q("5 mm")))
sketch10.addConstraint(Sketcher.Constraint("DistanceX", 17, 3, 15, 3, Q("5 mm")))
sketch10.addConstraint(Sketcher.Constraint("DistanceX", 25, 3, 23, 3, Q("5 mm")))
sketch10.addConstraint(Sketcher.Constraint("DistanceX", -1, 1, 1, 3, Q("2.704545 mm")))
pocket6 = body.newObject("PartDesign::Pocket", "Pocket005")
pocket6.Profile = sketch10
pocket6.Length = 13
pocket6.Reversed = True

# Sketch on XY plane
sketch11 = body.newObject("Sketcher::SketchObject", "Sketch010")
sketch11.AttachmentSupport = (doc.getObject("XY_Plane"), [""])
sketch11.MapMode = "FlatFace"
sketch11.AttachmentOffset = App.Placement(Vector(0, 0, -7.2), App.Rotation())
add_polygon(sketch11, [(14.504545, 22.104545), (14.504545, 20.404545), (12.804545, 20.404545), (12.804545, 22.104545)])  # lines 0-3
add_polygon(sketch11, [(14.504545, -23.245455), (14.504545, -24.945455), (12.804545, -24.945455), (12.804545, -23.245455)])  # lines 4-7
sketch11.addConstraint(Sketcher.Constraint("Vertical", 0))
sketch11.addConstraint(Sketcher.Constraint("Horizontal", 1))
sketch11.addConstraint(Sketcher.Constraint("Vertical", 2))
sketch11.addConstraint(Sketcher.Constraint("Horizontal", 3))
sketch11.addConstraint(Sketcher.Constraint("Vertical", 4))
sketch11.addConstraint(Sketcher.Constraint("Horizontal", 5))
sketch11.addConstraint(Sketcher.Constraint("Vertical", 6))
sketch11.addConstraint(Sketcher.Constraint("Horizontal", 7))
sketch11.addConstraint(Sketcher.Constraint("Vertical", 3, 2, 4, 2))
sketch11.addConstraint(Sketcher.Constraint("Vertical", 2, 2, 5, 2))
sketch11.addConstraint(Sketcher.Constraint("Equal", 7, 0))
sketch11.addConstraint(Sketcher.Constraint("Equal", 2, 4))
sketch11.addConstraint(Sketcher.Constraint("DistanceX", 1, 2, 1, 1, Q("1.7 mm")))
sketch11.addConstraint(Sketcher.Constraint("DistanceY", 4, 2, 0, 2, Q("45.35 mm")))
sketch11.addConstraint(Sketcher.Constraint("DistanceX", -1, 1, 0, 2, Q("14.504545 mm")))
sketch11.addConstraint(Sketcher.Constraint("DistanceY", -1, 1, 0, 2, Q("20.404545 mm")))
pocket7 = body.newObject("PartDesign::Pocket", "Pocket006")
pocket7.Profile = sketch11
pocket7.Length = 5
pocket7.Reversed = True

doc.recompute()
